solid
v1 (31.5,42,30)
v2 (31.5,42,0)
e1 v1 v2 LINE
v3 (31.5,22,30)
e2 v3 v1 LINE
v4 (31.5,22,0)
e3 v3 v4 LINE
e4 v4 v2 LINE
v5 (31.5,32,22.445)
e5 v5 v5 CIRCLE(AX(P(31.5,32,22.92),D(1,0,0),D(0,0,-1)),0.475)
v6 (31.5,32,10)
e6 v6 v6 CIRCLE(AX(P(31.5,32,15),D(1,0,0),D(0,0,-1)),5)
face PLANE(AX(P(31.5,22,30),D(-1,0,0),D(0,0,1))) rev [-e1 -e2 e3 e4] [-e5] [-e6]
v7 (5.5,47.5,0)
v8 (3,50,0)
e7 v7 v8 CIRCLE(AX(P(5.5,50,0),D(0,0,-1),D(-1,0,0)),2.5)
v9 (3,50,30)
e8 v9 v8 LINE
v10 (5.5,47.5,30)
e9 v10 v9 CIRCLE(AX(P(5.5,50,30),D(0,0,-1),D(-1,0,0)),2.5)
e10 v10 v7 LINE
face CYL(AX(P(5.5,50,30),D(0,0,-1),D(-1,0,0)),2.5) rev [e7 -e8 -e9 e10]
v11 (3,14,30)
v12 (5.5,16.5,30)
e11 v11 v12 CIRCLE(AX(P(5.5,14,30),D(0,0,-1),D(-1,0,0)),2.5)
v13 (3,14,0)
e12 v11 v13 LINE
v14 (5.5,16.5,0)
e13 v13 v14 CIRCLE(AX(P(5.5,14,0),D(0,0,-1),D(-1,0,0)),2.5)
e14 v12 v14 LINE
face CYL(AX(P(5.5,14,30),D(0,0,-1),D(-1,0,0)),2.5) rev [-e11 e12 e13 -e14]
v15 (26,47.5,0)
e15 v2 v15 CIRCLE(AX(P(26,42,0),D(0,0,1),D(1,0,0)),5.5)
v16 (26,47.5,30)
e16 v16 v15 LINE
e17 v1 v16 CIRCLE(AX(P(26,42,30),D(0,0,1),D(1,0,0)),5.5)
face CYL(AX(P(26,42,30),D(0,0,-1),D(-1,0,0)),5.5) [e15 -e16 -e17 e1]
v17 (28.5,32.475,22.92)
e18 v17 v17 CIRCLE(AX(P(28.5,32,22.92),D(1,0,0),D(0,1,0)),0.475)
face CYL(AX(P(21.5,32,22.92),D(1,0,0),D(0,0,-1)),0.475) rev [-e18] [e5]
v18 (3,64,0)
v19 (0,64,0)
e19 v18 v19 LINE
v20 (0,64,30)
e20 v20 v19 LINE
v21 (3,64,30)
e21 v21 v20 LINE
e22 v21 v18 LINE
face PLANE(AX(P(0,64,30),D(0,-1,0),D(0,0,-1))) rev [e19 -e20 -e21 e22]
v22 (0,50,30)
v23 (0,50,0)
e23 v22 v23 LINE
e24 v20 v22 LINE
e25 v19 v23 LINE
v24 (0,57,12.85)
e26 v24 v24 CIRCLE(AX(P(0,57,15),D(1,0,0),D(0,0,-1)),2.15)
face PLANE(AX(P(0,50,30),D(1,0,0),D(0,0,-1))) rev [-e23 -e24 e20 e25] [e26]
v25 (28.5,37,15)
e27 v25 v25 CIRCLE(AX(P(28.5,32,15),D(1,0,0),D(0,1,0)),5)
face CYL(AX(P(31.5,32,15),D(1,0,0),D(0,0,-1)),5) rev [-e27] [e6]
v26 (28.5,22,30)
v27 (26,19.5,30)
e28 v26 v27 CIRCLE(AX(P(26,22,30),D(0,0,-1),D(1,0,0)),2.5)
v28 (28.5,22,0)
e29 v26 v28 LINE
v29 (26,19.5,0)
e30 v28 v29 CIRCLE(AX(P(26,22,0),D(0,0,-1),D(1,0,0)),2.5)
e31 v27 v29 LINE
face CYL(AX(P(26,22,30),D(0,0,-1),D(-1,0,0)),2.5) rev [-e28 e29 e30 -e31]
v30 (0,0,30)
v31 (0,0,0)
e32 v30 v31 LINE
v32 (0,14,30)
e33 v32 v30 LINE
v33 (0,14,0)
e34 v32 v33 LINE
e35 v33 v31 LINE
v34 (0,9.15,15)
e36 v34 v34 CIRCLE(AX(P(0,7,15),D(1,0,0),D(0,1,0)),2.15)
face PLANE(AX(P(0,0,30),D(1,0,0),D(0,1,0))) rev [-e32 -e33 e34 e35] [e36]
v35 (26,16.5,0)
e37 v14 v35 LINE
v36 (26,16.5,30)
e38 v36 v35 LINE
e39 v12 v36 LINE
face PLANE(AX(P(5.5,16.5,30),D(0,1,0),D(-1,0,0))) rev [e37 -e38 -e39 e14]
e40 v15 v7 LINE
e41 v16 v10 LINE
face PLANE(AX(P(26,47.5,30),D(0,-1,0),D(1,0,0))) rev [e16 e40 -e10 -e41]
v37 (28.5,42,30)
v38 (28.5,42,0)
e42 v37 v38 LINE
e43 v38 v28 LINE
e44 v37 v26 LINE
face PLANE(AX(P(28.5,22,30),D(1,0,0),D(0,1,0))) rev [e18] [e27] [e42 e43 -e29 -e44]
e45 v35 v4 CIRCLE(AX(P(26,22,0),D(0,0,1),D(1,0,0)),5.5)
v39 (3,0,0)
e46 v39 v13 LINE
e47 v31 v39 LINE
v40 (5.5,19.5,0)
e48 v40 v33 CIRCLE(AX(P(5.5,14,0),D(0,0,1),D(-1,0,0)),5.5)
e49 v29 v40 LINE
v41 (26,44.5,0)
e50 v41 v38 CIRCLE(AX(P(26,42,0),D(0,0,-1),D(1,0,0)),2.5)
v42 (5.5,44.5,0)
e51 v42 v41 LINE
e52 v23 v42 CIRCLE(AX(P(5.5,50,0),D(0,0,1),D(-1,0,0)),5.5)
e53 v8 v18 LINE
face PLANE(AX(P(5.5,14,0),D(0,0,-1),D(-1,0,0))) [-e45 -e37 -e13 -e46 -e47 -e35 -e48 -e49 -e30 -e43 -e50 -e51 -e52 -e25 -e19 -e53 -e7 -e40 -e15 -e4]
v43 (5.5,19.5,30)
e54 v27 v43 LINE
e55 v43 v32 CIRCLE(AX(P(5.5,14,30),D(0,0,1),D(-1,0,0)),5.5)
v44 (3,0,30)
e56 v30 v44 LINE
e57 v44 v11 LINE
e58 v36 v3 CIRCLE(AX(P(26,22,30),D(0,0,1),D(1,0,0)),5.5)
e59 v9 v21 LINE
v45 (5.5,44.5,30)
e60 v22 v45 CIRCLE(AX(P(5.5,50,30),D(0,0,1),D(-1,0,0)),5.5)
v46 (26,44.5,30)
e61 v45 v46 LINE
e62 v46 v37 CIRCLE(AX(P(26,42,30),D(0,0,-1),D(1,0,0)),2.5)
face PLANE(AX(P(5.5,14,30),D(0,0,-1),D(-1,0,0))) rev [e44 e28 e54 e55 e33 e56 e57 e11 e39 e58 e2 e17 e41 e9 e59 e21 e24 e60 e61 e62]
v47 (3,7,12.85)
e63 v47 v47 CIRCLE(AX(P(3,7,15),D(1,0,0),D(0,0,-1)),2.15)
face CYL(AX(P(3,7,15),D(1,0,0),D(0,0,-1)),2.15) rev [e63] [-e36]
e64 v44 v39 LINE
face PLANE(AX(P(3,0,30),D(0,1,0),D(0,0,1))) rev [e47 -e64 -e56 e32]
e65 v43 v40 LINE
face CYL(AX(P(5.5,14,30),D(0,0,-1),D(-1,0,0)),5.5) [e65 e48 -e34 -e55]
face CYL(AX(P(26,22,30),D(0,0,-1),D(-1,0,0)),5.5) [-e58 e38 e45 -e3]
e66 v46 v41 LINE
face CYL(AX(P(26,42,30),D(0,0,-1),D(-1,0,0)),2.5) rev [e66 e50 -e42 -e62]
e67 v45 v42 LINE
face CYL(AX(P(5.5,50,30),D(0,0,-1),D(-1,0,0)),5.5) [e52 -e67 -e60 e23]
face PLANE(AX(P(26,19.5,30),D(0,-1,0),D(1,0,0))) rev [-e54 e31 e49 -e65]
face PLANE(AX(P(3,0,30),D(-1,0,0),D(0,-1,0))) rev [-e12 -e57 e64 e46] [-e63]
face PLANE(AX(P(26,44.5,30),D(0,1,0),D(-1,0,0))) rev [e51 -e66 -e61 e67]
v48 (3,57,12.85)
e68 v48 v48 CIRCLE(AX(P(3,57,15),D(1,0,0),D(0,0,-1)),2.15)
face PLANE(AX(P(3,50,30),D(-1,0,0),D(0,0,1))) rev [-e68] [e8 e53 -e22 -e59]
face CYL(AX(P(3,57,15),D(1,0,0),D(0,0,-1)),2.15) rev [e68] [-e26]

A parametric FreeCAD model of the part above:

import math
import FreeCAD as App
import Part
import Sketcher
from FreeCAD import Vector
Q = App.Units.Quantity

doc = App.newDocument("Part")
body = doc.addObject("PartDesign::Body", "Body")

# Sketch on XY plane
sketch1 = body.newObject("Sketcher::SketchObject", "Sketch")
sketch1.AttachmentSupport = (doc.getObject("XY_Plane"), [""])
sketch1.MapMode = "FlatFace"
sketch1.addGeometry(Part.LineSegment(Vector(0, 14, 0), Vector(0, 0, 0)), False)
sketch1.addGeometry(Part.LineSegment(Vector(0, 0, 0), Vector(3, 0, 0)), False)
sketch1.addGeometry(Part.LineSegment(Vector(3, 0, 0), Vector(3, 14, 0)), False)
sketch1.addGeometry(Part.ArcOfCircle(Part.Circle(Vector(5.5, 14, 0), Vector(0, 0, 1), 2.5), math.radians(90), math.radians(180)), False)
sketch1.addGeometry(Part.LineSegment(Vector(5.5, 16.5, 0), Vector(26, 16.5, 0)), False)
sketch1.addGeometry(Part.ArcOfCircle(Part.Circle(Vector(26, 22, 0), Vector(0, 0, 1), 5.5), math.radians(-90), math.radians(0)), False)
sketch1.addGeometry(Part.LineSegment(Vector(31.5, 22, 0), Vector(31.5, 42, 0)), False)
sketch1.addGeometry(Part.ArcOfCircle(Part.Circle(Vector(26, 42, 0), Vector(0, 0, 1), 5.5), math.radians(0), math.radians(90)), False)
sketch1.addGeometry(Part.LineSegment(Vector(26, 47.5, 0), Vector(5.5, 47.5, 0)), False)
sketch1.addGeometry(Part.ArcOfCircle(Part.Circle(Vector(5.5, 50, 0), Vector(0, 0, 1), 2.5), math.radians(180), math.radians(270)), False)
sketch1.addGeometry(Part.LineSegment(Vector(3, 50, 0), Vector(3, 64, 0)), False)
sketch1.addGeometry(Part.LineSegment(Vector(3, 64, 0), Vector(0, 64, 0)), False)
sketch1.addGeometry(Part.LineSegment(Vector(0, 64, 0), Vector(0, 50, 0)), False)
sketch1.addGeometry(Part.ArcOfCircle(Part.Circle(Vector(5.5, 50, 0), Vector(0, 0, 1), 5.5), math.radians(180), math.radians(270)), False)
sketch1.addGeometry(Part.LineSegment(Vector(5.5, 44.5, 0), Vector(26, 44.5, 0)), False)
sketch1.addGeometry(Part.ArcOfCircle(Part.Circle(Vector(26, 42, 0), Vector(0, 0, 1), 2.5), math.radians(0), math.radians(90)), False)
sketch1.addGeometry(Part.LineSegment(Vector(28.5, 42, 0), Vector(28.5, 22, 0)), False)
sketch1.addGeometry(Part.ArcOfCircle(Part.Circle(Vector(26, 22, 0), Vector(0, 0, 1), 2.5), math.radians(-90), math.radians(0)), False)
sketch1.addGeometry(Part.LineSegment(Vector(26, 19.5, 0), Vector(5.5, 19.5, 0)), False)
sketch1.addGeometry(Part.ArcOfCircle(Part.Circle(Vector(5.5, 14, 0), Vector(0, 0, 1), 5.5), math.radians(90), math.radians(180)), False)
sketch1.addConstraint(Sketcher.Constraint("Coincident", 0, 2, 1, 1))
sketch1.addConstraint(Sketcher.Constraint("Coincident", 1, 2, 2, 1))
sketch1.addConstraint(Sketcher.Constraint("Tangent", 2, 2, 3, 2))
sketch1.addConstraint(Sketcher.Constraint("Tangent", 3, 1, 4, 1))
sketch1.addConstraint(Sketcher.Constraint("Tangent", 4, 2, 5, 1))
sketch1.addConstraint(Sketcher.Constraint("Tangent", 5, 2, 6, 1))
sketch1.addConstraint(Sketcher.Constraint("Tangent", 6, 2, 7, 1))
sketch1.addConstraint(Sketcher.Constraint("Tangent", 7, 2, 8, 1))
sketch1.addConstraint(Sketcher.Constraint("Tangent", 8, 2, 9, 2))
sketch1.addConstraint(Sketcher.Constraint("Tangent", 9, 1, 10, 1))
sketch1.addConstraint(Sketcher.Constraint("Coincident", 10, 2, 11, 1))
sketch1.addConstraint(Sketcher.Constraint("Coincident", 11, 2, 12, 1))
sketch1.addConstraint(Sketcher.Constraint("Tangent", 12, 2, 13, 1))
sketch1.addConstraint(Sketcher.Constraint("Tangent", 13, 2, 14, 1))
sketch1.addConstraint(Sketcher.Constraint("Tangent", 14, 2, 15, 2))
sketch1.addConstraint(Sketcher.Constraint("Tangent", 15, 1, 16, 1))
sketch1.addConstraint(Sketcher.Constraint("Tangent", 16, 2, 17, 2))
sketch1.addConstraint(Sketcher.Constraint("Tangent", 17, 1, 18, 1))
sketch1.addConstraint(Sketcher.Constraint("Tangent", 18, 2, 19, 1))
sketch1.addConstraint(Sketcher.Constraint("Tangent", 19, 2, 0, 1))
sketch1.addConstraint(Sketcher.Constraint("Vertical", 0))
sketch1.addConstraint(Sketcher.Constraint("Horizontal", 1))
sketch1.addConstraint(Sketcher.Constraint("Vertical", 2))
sketch1.addConstraint(Sketcher.Constraint("Horizontal", 4))
sketch1.addConstraint(Sketcher.Constraint("Vertical", 6))
sketch1.addConstraint(Sketcher.Constraint("Horizontal", 8))
sketch1.addConstraint(Sketcher.Constraint("Vertical", 10))
sketch1.addConstraint(Sketcher.Constraint("Horizontal", 11))
sketch1.addConstraint(Sketcher.Constraint("Vertical", 12))
sketch1.addConstraint(Sketcher.Constraint("Horizontal", 14))
sketch1.addConstraint(Sketcher.Constraint("Vertical", 16))
sketch1.addConstraint(Sketcher.Constraint("Horizontal", 18))
sketch1.addConstraint(Sketcher.Constraint("Coincident", 0, 2, -1, 1))
sketch1.addConstraint(Sketcher.Constraint("Coincident", 13, 3, 9, 3))
sketch1.addConstraint(Sketcher.Constraint("Coincident", 15, 3, 7, 3))
sketch1.addConstraint(Sketcher.Constraint("Coincident", 17, 3, 5, 3))
sketch1.addConstraint(Sketcher.Constraint("Coincident", 19, 3, 3, 3))
sketch1.addConstraint(Sketcher.Constraint("Equal", 5, 7))
sketch1.addConstraint(Sketcher.Constraint("Equal", 3, 9))
sketch1.addConstraint(Sketcher.Constraint("Equal", 7, 13))
sketch1.addConstraint(Sketcher.Constraint("PointOnObject", 11, 2, -2))
sketch1.addConstraint(Sketcher.Constraint("Equal", 2, 10))
sketch1.addConstraint(Sketcher.Constraint("Radius", 3, Q("2.5 mm")))
sketch1.addConstraint(Sketcher.Constraint("Radius", 5, Q("5.5 mm")))
sketch1.addConstraint(Sketcher.Constraint("DistanceY", 0, 2, 0, 1, Q("14 mm")))
sketch1.addConstraint(Sketcher.Constraint("DistanceY", 6, 1, 6, 2, Q("20 mm")))
sketch1.addConstraint(Sketcher.Constraint("DistanceX", 4, 1, 4, 2, Q("20.5 mm")))
pad1 = body.newObject("PartDesign::Pad", "Pad")
pad1.Profile = sketch1
pad1.Length = 30

# Sketch on YZ plane
sketch2 = body.newObject("Sketcher::SketchObject", "Sketch001")
sketch2.AttachmentSupport = (doc.getObject("YZ_Plane"), [""])
sketch2.MapMode = "FlatFace"
sketch2.AttachmentOffset = App.Placement(Vector(0, 0, 3), App.Rotation())
sketch2.addGeometry(Part.Circle(Vector(57, 15, 0), Vector(0, 0, 1), 2.1), False)
sketch2.addGeometry(Part.Circle(Vector(7, 15, 0), Vector(0, 0, 1), 2.1), False)
sketch2.addConstraint(Sketcher.Constraint("Equal", 0, 1))
sketch2.addConstraint(Sketcher.Constraint("Horizontal", 0, 3, 1, 3))
sketch2.addConstraint(Sketcher.Constraint("Diameter", 0, Q("4.3 mm")))
sketch2.addConstraint(Sketcher.Constraint("DistanceX", -1, 1, 0, 3, Q("57 mm")))
sketch2.addConstraint(Sketcher.Constraint("DistanceY", -1, 1, 0, 3, Q("15 mm")))
sketch2.addConstraint(Sketcher.Constraint("DistanceX", -1, 1, 1, 3, Q("7 mm")))
doc.recompute()
hole = body.newObject("PartDesign::Hole", "Hole")
hole.Profile = sketch2
hole.ThreadType = "None"
hole.Diameter = 4.3
hole.DepthType = "Dimension"
hole.Depth = 7
hole.DrillPoint = "Flat"

# Sketch on YZ plane
sketch3 = body.newObject("Sketcher::SketchObject", "Sketch002")
sketch3.AttachmentSupport = (doc.getObject("YZ_Plane"), [""])
sketch3.MapMode = "FlatFace"
sketch3.AttachmentOffset = App.Placement(Vector(0, 0, 31.5), App.Rotation())
sketch3.addGeometry(Part.Circle(Vector(32, 15, 0), Vector(0, 0, 1), 5), False)
sketch3.addConstraint(Sketcher.Constraint("Diameter", 0, Q("10 mm")))
sketch3.addConstraint(Sketcher.Constraint("DistanceX", -1, 1, 0, 3, Q("32 mm")))
sketch3.addConstraint(Sketcher.Constraint("DistanceY", -1, 1, 0, 3, Q("15 mm")))
doc.recompute()
hole2 = body.newObject("PartDesign::Hole", "Hole001")
hole2.Profile = sketch3
hole2.ThreadType = "None"
hole2.Diameter = 10
hole2.DepthType = "Dimension"
hole2.Depth = 7
hole2.DrillPoint = "Flat"

# Sketch on YZ plane
sketch4 = body.newObject("Sketcher::SketchObject", "Sketch003")
sketch4.AttachmentSupport = (doc.getObject("YZ_Plane"), [""])
sketch4.MapMode = "FlatFace"
sketch4.AttachmentOffset = App.Placement(Vector(0, 0, 31.5), App.Rotation())
sketch4.addGeometry(Part.Circle(Vector(32, 22.92, 0), Vector(0, 0, 1), 0.47), False)
sketch4.addConstraint(Sketcher.Constraint("Diameter", 0, Q("0.95 mm")))
sketch4.addConstraint(Sketcher.Constraint("DistanceX", -1, 1, 0, 3, Q("32 mm")))
sketch4.addConstraint(Sketcher.Constraint("DistanceY", -1, 1, 0, 3, Q("22.92 mm")))
pocket1 = body.newObject("PartDesign::Pocket", "Pocket")
pocket1.Profile = sketch4
pocket1.Length = 10

doc.recompute()
